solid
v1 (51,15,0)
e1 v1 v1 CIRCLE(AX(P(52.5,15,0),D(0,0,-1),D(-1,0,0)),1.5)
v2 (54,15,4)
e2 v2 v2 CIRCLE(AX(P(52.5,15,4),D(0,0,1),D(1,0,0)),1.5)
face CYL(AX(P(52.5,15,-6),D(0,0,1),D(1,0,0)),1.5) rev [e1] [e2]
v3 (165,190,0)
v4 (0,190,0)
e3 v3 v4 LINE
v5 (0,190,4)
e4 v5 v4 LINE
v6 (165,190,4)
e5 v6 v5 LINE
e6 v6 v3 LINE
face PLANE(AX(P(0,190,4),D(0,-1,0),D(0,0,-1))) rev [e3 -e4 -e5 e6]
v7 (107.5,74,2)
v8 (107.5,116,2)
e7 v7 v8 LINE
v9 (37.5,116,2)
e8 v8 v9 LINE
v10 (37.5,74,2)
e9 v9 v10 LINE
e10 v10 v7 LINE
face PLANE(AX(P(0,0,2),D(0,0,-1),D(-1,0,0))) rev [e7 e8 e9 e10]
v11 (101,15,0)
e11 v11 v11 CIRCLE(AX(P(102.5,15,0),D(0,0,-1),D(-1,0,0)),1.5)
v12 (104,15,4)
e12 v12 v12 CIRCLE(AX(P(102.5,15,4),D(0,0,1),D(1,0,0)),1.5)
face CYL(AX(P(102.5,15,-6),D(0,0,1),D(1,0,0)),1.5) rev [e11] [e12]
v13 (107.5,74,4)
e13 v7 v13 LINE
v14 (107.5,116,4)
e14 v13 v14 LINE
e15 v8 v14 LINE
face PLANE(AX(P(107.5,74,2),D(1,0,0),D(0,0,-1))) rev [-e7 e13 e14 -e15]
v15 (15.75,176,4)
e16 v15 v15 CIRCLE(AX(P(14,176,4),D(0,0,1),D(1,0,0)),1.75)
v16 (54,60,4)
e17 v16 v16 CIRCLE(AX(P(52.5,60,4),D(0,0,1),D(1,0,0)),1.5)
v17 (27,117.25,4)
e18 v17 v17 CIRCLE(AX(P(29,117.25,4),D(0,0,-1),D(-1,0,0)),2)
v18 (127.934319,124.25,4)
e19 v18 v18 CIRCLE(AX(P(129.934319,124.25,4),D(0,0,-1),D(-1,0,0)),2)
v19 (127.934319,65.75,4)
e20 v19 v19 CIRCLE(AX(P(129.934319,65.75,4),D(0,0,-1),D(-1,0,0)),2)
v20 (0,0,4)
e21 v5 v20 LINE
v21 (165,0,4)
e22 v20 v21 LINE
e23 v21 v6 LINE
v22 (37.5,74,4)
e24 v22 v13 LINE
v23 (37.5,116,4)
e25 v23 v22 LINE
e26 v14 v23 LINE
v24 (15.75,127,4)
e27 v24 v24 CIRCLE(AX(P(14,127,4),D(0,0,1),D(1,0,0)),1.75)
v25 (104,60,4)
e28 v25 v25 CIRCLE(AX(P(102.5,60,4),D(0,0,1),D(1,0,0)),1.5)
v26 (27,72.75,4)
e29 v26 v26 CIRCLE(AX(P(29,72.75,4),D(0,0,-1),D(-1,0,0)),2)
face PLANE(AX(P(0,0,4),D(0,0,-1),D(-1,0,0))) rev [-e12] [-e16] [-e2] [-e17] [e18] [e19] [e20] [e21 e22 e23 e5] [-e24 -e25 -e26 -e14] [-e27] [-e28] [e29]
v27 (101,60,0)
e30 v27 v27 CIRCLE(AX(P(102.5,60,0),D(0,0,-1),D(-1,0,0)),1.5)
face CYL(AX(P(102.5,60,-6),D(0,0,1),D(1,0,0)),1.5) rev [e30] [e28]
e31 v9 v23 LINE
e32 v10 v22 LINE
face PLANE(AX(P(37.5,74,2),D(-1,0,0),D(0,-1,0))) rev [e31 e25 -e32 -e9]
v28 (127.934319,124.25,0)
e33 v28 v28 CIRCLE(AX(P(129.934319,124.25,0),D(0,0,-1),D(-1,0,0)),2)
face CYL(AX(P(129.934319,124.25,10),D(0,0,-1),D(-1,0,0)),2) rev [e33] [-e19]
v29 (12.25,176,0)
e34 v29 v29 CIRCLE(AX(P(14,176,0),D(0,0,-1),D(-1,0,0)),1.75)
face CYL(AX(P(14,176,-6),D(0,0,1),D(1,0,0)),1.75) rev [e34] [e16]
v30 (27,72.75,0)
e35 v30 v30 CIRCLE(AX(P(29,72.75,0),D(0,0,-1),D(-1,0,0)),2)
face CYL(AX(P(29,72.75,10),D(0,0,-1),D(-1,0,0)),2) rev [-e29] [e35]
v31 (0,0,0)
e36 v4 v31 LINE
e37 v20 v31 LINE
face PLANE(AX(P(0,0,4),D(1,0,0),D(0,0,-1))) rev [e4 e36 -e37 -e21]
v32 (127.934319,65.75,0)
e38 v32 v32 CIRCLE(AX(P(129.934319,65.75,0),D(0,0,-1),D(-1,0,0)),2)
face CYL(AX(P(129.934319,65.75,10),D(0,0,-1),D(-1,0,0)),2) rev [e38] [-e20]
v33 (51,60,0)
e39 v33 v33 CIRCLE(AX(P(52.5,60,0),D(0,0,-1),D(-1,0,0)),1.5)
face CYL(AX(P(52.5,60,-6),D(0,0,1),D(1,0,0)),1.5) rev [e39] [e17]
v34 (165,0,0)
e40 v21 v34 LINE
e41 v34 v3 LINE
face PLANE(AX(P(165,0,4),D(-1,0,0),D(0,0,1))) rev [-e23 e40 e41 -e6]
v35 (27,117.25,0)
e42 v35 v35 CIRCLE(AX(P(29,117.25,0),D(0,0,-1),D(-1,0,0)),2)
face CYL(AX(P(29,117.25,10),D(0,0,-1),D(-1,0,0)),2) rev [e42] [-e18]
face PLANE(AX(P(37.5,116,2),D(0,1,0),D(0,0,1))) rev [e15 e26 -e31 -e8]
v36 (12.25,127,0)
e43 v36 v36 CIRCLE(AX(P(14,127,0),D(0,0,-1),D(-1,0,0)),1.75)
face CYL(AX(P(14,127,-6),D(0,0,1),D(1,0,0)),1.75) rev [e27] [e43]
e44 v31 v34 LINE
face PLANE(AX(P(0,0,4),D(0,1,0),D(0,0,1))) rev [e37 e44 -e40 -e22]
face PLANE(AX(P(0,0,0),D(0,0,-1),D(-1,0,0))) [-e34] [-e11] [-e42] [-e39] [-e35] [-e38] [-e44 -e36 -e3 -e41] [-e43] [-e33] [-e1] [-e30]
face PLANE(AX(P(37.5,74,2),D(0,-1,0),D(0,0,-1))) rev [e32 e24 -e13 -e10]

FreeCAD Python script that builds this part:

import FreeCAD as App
import Part
import Sketcher
from FreeCAD import Vector

doc = App.newDocument("Part")
body = doc.addObject("PartDesign::Body", "Body")

# Sketch on XY plane
sketch1 = body.newObject("Sketcher::SketchObject", "Sketch")
sketch1.AttachmentSupport = (doc.getObject("XY_Plane"), [""])
sketch1.MapMode = "FlatFace"
sketch1.addGeometry(Part.LineSegment(Vector(0, 190, 0), Vector(0, 0, 0)), False)
sketch1.addGeometry(Part.LineSegment(Vector(0, 0, 0), Vector(165, 0, 0)), False)
sketch1.addGeometry(Part.LineSegment(Vector(165, 0, 0), Vector(165, 190, 0)), False)
sketch1.addGeometry(Part.LineSegment(Vector(165, 190, 0), Vector(0, 190, 0)), False)
sketch1.addConstraint(Sketcher.Constraint("Coincident", 0, 2, 1, 1))
sketch1.addConstraint(Sketcher.Constraint("Coincident", 1, 2, 2, 1))
sketch1.addConstraint(Sketcher.Constraint("Coincident", 2, 2, 3, 1))
sketch1.addConstraint(Sketcher.Constraint("Coincident", 3, 2, 0, 1))
sketch1.addConstraint(Sketcher.Constraint("Vertical", 0))
sketch1.addConstraint(Sketcher.Constraint("Horizontal", 1))
sketch1.addConstraint(Sketcher.Constraint("Vertical", 2))
sketch1.addConstraint(Sketcher.Constraint("Horizontal", 3))
sketch1.addConstraint(Sketcher.Constraint("Coincident", 0, 2, -1, 1))
sketch1.addConstraint(Sketcher.Constraint("DistanceX", 1, 1, 1, 2, 165.0))
sketch1.addConstraint(Sketcher.Constraint("DistanceY", 0, 2, 0, 1, 190.0))
pad1 = body.newObject("PartDesign::Pad", "Pad")
pad1.Profile = sketch1
pad1.Length = 4

# Sketch on XY plane
sketch2 = body.newObject("Sketcher::SketchObject", "Sketch001")
sketch2.AttachmentSupport = (doc.getObject("XY_Plane"), [""])
sketch2.MapMode = "FlatFace"
sketch2.addGeometry(Part.Circle(Vector(129.934319, 124.25, 0), Vector(0, 0, 1), 2), False)
sketch2.addGeometry(Part.Circle(Vector(29, 117.25, 0), Vector(0, 0, 1), 2), False)
sketch2.addGeometry(Part.Circle(Vector(29, 72.75, 0), Vector(0, 0, 1), 2), False)
sketch2.addGeometry(Part.Circle(Vector(129.934319, 65.75, 0), Vector(0, 0, 1), 2), False)
sketch2.addConstraint(Sketcher.Constraint("Equal", 0, 1))
sketch2.addConstraint(Sketcher.Constraint("Equal", 1, 2))
sketch2.addConstraint(Sketcher.Constraint("Equal", 2, 3))
sketch2.addConstraint(Sketcher.Constraint("Vertical", 1, 3, 2, 3))
sketch2.addConstraint(Sketcher.Constraint("Vertical", 0, 3, 3, 3))
sketch2.addConstraint(Sketcher.Constraint("Diameter", 0, 4.0))
sketch2.addConstraint(Sketcher.Constraint("DistanceX", -1, 1, 1, 3, 29.0))
sketch2.addConstraint(Sketcher.Constraint("DistanceY", 1, 3, 0, 3, 7.0))
sketch2.addConstraint(Sketcher.Constraint("DistanceY", 3, 3, 2, 3, 7.0))
sketch2.addConstraint(Sketcher.Constraint("DistanceY", 2, 3, 1, 3, 44.5))
sketch2.addConstraint(Sketcher.Constraint("DistanceY", -1, 1, 0, 3, 124.25))
sketch2.addConstraint(Sketcher.Constraint("DistanceX", -1, 1, 0, 3, 129.934319))
pocket1 = body.newObject("PartDesign::Pocket", "Pocket")
pocket1.Profile = sketch2
pocket1.Length = 10
pocket1.Reversed = True

# Sketch on XY plane
sketch3 = body.newObject("Sketcher::SketchObject", "Sketch002")
sketch3.AttachmentSupport = (doc.getObject("XY_Plane"), [""])
sketch3.MapMode = "FlatFace"
sketch3.AttachmentOffset = App.Placement(Vector(0, 0, 4), App.Rotation())
sketch3.addGeometry(Part.Circle(Vector(14, 176, 0), Vector(0, 0, 1), 1.75), False)
sketch3.addGeometry(Part.Circle(Vector(14, 127, 0), Vector(0, 0, 1), 1.75), False)
sketch3.addConstraint(Sketcher.Constraint("Equal", 0, 1))
sketch3.addConstraint(Sketcher.Constraint("Vertical", 0, 3, 1, 3))
sketch3.addConstraint(Sketcher.Constraint("Diameter", 0, 3.5))
sketch3.addConstraint(Sketcher.Constraint("DistanceX", -1, 1, 0, 3, 14.0))
sketch3.addConstraint(Sketcher.Constraint("DistanceY", -1, 1, 0, 3, 176.0))
sketch3.addConstraint(Sketcher.Constraint("DistanceY", -1, 1, 1, 3, 127.0))
pocket2 = body.newObject("PartDesign::Pocket", "Pocket001")
pocket2.Profile = sketch3
pocket2.Length = 10

# Sketch on XY plane
sketch4 = body.newObject("Sketcher::SketchObject", "Sketch003")
sketch4.AttachmentSupport = (doc.getObject("XY_Plane"), [""])
sketch4.MapMode = "FlatFace"
sketch4.AttachmentOffset = App.Placement(Vector(0, 0, 4), App.Rotation())
sketch4.addGeometry(Part.Circle(Vector(52.5, 15, 0), Vector(0, 0, 1), 1.5), False)
sketch4.addGeometry(Part.Circle(Vector(52.5, 60, 0), Vector(0, 0, 1), 1.5), False)
sketch4.addGeometry(Part.Circle(Vector(102.5, 60, 0), Vector(0, 0, 1), 1.5), False)
sketch4.addGeometry(Part.Circle(Vector(102.5, 15, 0), Vector(0, 0, 1), 1.5), False)
sketch4.addConstraint(Sketcher.Constraint("Equal", 0, 1))
sketch4.addConstraint(Sketcher.Constraint("Equal", 1, 2))
sketch4.addConstraint(Sketcher.Constraint("Equal", 2, 3))
sketch4.addConstraint(Sketcher.Constraint("Horizontal", 1, 3, 2, 3))
sketch4.addConstraint(Sketcher.Constraint("Horizontal", 0, 3, 3, 3))
sketch4.addConstraint(Sketcher.Constraint("Vertical", 0, 3, 1, 3))
sketch4.addConstraint(Sketcher.Constraint("Vertical", 2, 3, 3, 3))
sketch4.addConstraint(Sketcher.Constraint("Diameter", 0, 3.0))
sketch4.addConstraint(Sketcher.Constraint("DistanceY", -1, 1, 0, 3, 15.0))
sketch4.addConstraint(Sketcher.Constraint("DistanceY", -1, 1, 1, 3, 60.0))
sketch4.addConstraint(Sketcher.Constraint("DistanceX", 1, 3, 2, 3, 50.0))
sketch4.addConstraint(Sketcher.Constraint("DistanceX", -1, 1, 0, 3, 52.5))
pocket3 = body.newObject("PartDesign::Pocket", "Pocket002")
pocket3.Profile = sketch4
pocket3.Length = 10

# Sketch on XY plane
sketch5 = body.newObject("Sketcher::SketchObject", "Sketch004")
sketch5.AttachmentSupport = (doc.getObject("XY_Plane"), [""])
sketch5.MapMode = "FlatFace"
sketch5.AttachmentOffset = App.Placement(Vector(0, 0, 4), App.Rotation())
sketch5.addGeometry(Part.LineSegment(Vector(37.5, 116, 0), Vector(37.5, 74, 0)), False)
sketch5.addGeometry(Part.LineSegment(Vector(37.5, 74, 0), Vector(107.5, 74, 0)), False)
sketch5.addGeometry(Part.LineSegment(Vector(107.5, 74, 0), Vector(107.5, 116, 0)), False)
sketch5.addGeometry(Part.LineSegment(Vector(107.5, 116, 0), Vector(37.5, 116, 0)), False)
sketch5.addConstraint(Sketcher.Constraint("Coincident", 0, 2, 1, 1))
sketch5.addConstraint(Sketcher.Constraint("Coincident", 1, 2, 2, 1))
sketch5.addConstraint(Sketcher.Constraint("Coincident", 2, 2, 3, 1))
sketch5.addConstraint(Sketcher.Constraint("Coincident", 3, 2, 0, 1))
sketch5.addConstraint(Sketcher.Constraint("Vertical", 0))
sketch5.addConstraint(Sketcher.Constraint("Horizontal", 1))
sketch5.addConstraint(Sketcher.Constraint("Vertical", 2))
sketch5.addConstraint(Sketcher.Constraint("Horizontal", 3))
sketch5.addConstraint(Sketcher.Constraint("DistanceX", 1, 1, 1, 2, 70.0))
sketch5.addConstraint(Sketcher.Constraint("DistanceY", 0, 2, 0, 1, 42.0))
sketch5.addConstraint(Sketcher.Constraint("DistanceY", -1, 1, 0, 2, 74.0))
sketch5.addConstraint(Sketcher.Constraint("DistanceX", -1, 1, 0, 2, 37.5))
pocket4 = body.newObject("PartDesign::Pocket", "Pocket003")
pocket4.Profile = sketch5
pocket4.Length = 2

doc.recompute()
